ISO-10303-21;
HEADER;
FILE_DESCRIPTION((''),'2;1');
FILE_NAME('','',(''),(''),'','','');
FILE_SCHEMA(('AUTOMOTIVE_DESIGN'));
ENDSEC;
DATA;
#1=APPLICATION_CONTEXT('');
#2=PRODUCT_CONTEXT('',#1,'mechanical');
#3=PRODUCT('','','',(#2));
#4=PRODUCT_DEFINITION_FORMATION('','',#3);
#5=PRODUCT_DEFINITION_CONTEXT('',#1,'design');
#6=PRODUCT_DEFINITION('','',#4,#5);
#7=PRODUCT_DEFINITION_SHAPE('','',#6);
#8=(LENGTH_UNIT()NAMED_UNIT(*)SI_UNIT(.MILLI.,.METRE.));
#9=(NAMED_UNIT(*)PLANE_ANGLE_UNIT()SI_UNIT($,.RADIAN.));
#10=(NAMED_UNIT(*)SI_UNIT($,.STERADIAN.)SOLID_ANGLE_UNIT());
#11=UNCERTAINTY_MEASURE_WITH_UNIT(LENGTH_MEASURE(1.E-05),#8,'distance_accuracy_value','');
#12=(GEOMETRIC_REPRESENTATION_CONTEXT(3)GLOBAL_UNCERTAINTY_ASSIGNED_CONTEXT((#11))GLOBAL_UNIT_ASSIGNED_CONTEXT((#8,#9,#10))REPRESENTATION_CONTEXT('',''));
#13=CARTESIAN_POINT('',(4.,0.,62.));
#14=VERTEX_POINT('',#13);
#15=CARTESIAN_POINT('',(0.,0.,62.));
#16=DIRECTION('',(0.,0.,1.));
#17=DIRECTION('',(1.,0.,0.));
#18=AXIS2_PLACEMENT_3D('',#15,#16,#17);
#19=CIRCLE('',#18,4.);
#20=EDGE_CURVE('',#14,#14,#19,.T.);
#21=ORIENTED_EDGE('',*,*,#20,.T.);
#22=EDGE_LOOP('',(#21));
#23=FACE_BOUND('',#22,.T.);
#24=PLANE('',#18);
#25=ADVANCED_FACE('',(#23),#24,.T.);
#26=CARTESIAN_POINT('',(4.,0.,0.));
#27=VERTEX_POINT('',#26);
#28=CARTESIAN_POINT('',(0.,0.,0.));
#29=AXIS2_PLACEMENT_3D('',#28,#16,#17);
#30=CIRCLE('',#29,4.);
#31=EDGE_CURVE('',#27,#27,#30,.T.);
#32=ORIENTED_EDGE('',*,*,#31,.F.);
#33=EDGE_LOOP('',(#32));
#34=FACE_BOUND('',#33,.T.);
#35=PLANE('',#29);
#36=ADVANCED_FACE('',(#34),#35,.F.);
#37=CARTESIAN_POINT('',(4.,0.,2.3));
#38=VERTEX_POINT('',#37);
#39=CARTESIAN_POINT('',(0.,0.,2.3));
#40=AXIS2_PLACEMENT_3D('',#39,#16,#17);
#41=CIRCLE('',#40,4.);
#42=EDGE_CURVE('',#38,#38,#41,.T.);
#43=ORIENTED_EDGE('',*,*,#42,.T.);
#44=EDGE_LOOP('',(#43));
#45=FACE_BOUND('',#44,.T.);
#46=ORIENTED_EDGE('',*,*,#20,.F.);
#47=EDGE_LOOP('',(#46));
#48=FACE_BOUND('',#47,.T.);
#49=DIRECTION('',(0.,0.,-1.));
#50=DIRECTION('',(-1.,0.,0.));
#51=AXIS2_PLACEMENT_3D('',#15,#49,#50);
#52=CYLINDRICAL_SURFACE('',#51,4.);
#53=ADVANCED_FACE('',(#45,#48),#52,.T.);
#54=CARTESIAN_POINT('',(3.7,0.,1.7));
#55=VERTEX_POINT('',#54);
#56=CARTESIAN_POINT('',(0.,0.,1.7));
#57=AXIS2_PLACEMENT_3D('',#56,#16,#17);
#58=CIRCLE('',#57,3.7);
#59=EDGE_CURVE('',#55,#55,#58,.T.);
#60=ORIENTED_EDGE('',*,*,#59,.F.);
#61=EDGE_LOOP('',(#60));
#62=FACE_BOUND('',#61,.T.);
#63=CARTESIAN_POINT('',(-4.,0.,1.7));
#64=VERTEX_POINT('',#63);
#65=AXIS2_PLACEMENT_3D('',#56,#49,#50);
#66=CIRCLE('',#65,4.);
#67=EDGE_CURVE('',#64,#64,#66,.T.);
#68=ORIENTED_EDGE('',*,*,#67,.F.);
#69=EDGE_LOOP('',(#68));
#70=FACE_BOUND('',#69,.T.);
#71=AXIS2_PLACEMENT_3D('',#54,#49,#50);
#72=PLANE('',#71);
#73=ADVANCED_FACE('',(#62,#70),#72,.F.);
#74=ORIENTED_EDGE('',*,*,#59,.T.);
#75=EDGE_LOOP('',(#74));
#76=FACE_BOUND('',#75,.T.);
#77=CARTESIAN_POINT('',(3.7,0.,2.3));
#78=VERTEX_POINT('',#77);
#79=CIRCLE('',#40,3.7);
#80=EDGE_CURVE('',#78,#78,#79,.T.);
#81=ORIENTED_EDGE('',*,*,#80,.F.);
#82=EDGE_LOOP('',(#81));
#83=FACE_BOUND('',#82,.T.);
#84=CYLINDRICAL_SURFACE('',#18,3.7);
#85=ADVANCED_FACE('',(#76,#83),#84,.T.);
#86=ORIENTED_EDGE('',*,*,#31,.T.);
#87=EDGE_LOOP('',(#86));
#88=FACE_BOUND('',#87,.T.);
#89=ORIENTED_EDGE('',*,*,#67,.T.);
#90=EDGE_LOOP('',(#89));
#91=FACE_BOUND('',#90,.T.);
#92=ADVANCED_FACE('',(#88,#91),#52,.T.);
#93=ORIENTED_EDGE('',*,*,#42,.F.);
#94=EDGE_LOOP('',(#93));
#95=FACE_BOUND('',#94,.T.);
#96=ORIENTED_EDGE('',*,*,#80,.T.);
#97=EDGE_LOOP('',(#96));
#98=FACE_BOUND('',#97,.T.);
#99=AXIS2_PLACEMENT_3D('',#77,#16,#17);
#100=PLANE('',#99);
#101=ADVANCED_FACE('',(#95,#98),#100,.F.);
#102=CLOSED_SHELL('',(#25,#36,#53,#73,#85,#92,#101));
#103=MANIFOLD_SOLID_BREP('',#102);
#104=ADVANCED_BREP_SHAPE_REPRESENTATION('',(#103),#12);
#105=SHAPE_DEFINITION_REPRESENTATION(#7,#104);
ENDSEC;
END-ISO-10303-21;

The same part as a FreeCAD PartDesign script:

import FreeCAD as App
import Part
import Sketcher


def add_polygon(sketch, points):
    """Adds a closed chain of lines whose ends are joined by coincident constraints."""
    first, n = sketch.GeometryCount, len(points)
    for a, b in zip(points, points[1:] + points[:1]):
        sketch.addGeometry(Part.LineSegment(App.Vector(*a, 0), App.Vector(*b, 0)), False)
    for i in range(n):
        sketch.addConstraint(Sketcher.Constraint("Coincident", first + i, 2, first + (i + 1) % n, 1))

doc = App.newDocument("Part")
params = doc.addObject("Spreadsheet::Sheet", "Params")
for row, (alias, value) in enumerate([
    ("sketch1_diameter", "8 mm"),
    ("pad1_length", "62 mm"),
    ("sketch2_width", "0.6 mm"),
    ("groove_angle", "360 deg"),
], start=1):
    params.set(f"A{row}", alias)
    params.set(f"B{row}", "=" + value)
    params.setAlias(f"B{row}", alias)

body = doc.addObject("PartDesign::Body", "Body")

# Sketch on XY plane
sketch1 = body.newObject("Sketcher::SketchObject", "Sketch")
sketch1.AttachmentSupport = (doc.getObject("XY_Plane"), [""])
sketch1.MapMode = "FlatFace"
sketch1.addGeometry(Part.Circle(App.Vector(0, 0, 0), App.Vector(0, 0, 1), 4), False)
sketch1.addConstraint(Sketcher.Constraint("Coincident", 0, 3, -1, 1))
sketch1.addConstraint(Sketcher.Constraint("Diameter", 0, 8.0))
sketch1.setExpression("Constraints[1]", "Params.sketch1_diameter")
pad1 = body.newObject("PartDesign::Pad", "Pad")
pad1.Profile = sketch1
pad1.setExpression("Length", "Params.pad1_length")

# Sketch on XZ plane
sketch2 = body.newObject("Sketcher::SketchObject", "Sketch001")
sketch2.AttachmentSupport = (doc.getObject("XZ_Plane"), [""])
sketch2.MapMode = "FlatFace"
add_polygon(sketch2, [(3.7, 1.7), (3.7, 2.3), (4.3, 2.3), (4.3, 1.7)])  # lines 0-3
sketch2.addConstraint(Sketcher.Constraint("Vertical", 0))
sketch2.addConstraint(Sketcher.Constraint("Horizontal", 1))
sketch2.addConstraint(Sketcher.Constraint("Vertical", 2))
sketch2.addConstraint(Sketcher.Constraint("Horizontal", 3))
sketch2.addConstraint(Sketcher.Constraint("Equal", 3, 0))
sketch2.addConstraint(Sketcher.Constraint("DistanceX", 1, 1, 1, 2, 0.6))
sketch2.addConstraint(Sketcher.Constraint("DistanceX", -1, 1, 0, 2, 3.7))
sketch2.addConstraint(Sketcher.Constraint("DistanceY", -1, 1, 0, 2, 2.3))
sketch2.setExpression("Constraints[9]", "Params.sketch2_width")
groove = body.newObject("PartDesign::Groove", "Groove")
groove.Profile = sketch2
groove.ReferenceAxis = (sketch2, ["V_Axis"])
groove.setExpression("Angle", "Params.groove_angle")

doc.recompute()
